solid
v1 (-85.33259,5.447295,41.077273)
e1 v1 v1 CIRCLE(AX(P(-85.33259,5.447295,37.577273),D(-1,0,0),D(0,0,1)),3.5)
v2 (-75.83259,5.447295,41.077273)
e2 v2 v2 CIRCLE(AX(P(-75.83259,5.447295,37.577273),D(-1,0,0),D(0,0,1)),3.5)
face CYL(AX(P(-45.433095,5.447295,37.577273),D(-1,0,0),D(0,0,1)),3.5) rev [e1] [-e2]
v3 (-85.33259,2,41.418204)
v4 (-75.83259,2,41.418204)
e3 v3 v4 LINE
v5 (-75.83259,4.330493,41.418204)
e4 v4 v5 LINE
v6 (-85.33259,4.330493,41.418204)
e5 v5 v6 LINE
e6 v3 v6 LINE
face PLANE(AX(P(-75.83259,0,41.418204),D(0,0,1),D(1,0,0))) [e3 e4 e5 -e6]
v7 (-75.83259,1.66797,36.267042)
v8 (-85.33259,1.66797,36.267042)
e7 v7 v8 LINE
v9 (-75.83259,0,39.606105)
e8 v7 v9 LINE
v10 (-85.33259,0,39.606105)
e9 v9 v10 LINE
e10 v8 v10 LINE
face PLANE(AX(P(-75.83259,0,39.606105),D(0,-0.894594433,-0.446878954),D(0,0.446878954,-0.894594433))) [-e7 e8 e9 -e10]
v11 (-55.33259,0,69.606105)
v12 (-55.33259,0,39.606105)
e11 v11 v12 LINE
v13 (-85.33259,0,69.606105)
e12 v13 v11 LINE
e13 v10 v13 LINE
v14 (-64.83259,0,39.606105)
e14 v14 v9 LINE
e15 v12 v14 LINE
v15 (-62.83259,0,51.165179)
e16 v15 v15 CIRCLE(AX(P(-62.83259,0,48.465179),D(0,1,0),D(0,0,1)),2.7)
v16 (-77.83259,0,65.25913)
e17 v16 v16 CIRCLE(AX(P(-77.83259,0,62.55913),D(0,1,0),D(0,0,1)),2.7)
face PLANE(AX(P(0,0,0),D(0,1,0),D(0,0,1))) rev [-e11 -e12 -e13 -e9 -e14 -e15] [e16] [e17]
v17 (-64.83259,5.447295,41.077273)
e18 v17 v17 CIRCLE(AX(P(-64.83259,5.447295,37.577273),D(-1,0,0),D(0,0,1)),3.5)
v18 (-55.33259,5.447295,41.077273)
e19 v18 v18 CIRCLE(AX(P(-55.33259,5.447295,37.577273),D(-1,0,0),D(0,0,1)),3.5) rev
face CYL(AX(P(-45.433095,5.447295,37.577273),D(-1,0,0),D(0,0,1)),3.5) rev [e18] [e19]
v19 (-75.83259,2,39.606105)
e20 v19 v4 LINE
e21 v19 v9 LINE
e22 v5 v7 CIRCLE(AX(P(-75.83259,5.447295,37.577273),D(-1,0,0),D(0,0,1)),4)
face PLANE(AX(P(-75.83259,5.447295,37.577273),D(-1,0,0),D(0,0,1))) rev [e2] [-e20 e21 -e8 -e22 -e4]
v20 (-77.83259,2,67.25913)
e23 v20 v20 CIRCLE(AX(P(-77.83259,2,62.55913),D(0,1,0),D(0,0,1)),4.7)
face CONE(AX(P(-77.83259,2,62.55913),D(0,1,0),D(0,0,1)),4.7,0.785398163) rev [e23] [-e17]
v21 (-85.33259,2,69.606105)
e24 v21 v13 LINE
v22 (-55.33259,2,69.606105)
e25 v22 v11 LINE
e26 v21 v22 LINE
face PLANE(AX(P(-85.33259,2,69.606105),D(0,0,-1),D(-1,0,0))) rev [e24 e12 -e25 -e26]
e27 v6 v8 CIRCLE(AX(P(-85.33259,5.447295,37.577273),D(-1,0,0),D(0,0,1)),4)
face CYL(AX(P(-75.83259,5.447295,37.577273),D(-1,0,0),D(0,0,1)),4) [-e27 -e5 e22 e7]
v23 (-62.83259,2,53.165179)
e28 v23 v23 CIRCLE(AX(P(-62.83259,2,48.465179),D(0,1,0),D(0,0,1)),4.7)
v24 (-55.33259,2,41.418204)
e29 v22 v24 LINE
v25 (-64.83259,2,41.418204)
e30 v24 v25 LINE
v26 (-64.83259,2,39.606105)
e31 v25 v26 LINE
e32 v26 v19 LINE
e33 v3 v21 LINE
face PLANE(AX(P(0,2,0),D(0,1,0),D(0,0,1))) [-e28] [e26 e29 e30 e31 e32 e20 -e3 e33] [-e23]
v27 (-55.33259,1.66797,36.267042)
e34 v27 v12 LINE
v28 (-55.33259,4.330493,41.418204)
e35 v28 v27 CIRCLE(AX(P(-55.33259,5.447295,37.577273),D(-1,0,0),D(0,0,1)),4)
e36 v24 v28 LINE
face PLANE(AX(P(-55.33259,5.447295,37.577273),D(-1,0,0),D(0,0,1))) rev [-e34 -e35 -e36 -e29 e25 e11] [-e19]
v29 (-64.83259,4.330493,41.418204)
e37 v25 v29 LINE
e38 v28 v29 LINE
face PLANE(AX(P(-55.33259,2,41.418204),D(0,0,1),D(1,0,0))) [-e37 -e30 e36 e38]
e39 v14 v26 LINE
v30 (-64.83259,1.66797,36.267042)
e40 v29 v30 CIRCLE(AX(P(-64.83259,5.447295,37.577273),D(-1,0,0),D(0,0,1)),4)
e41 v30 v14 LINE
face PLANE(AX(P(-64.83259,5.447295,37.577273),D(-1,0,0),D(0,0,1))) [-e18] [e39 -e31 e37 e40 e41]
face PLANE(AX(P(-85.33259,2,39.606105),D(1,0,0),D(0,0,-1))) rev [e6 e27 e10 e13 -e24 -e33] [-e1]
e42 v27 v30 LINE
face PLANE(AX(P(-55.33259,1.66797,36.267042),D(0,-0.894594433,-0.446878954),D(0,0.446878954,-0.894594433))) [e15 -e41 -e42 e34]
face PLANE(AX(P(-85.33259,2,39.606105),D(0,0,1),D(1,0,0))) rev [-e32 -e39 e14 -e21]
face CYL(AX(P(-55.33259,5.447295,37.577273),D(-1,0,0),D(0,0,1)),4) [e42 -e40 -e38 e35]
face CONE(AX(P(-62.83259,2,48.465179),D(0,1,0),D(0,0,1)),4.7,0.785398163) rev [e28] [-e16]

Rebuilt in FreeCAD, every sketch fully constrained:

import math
import FreeCAD as App
import Part
import Sketcher
Q = App.Units.Quantity

doc = App.newDocument("Part")
body = doc.addObject("PartDesign::Body", "Body")

sketch1 = doc.addObject("Sketcher::SketchObject", "Sketch")
body.addObject(sketch1)
sketch1.AttachmentSupport = (doc.XZ_Plane, [""])
sketch1.MapMode = "FlatFace"
sketch1.addGeometry([
    Part.LineSegment(App.Vector(-85, 40, 0), App.Vector(-85, 70, 0)),
    Part.LineSegment(App.Vector(-85, 70, 0), App.Vector(-55, 70, 0)),
    Part.LineSegment(App.Vector(-55, 70, 0), App.Vector(-55, 40, 0)),
    Part.LineSegment(App.Vector(-55, 40, 0), App.Vector(-85, 40, 0)),
], False)
sketch1.addConstraint([
    Sketcher.Constraint("Coincident", 0, 2, 1, 1),
    Sketcher.Constraint("Coincident", 1, 2, 2, 1),
    Sketcher.Constraint("Coincident", 2, 2, 3, 1),
    Sketcher.Constraint("Coincident", 3, 2, 0, 1),
    Sketcher.Constraint("Vertical", 0),
    Sketcher.Constraint("Horizontal", 1),
    Sketcher.Constraint("Vertical", 2),
    Sketcher.Constraint("Horizontal", 3),
    Sketcher.Constraint("Equal", 3, 0),
    Sketcher.Constraint("DistanceX", 1, 1, 1, 2, Q("30 mm")),
    Sketcher.Constraint("DistanceX", 0, 2, -1, 1, Q("85.33259 mm")),
    Sketcher.Constraint("DistanceY", -1, 1, 0, 2, Q("69.606105 mm")),
])
pad1 = doc.addObject("PartDesign::Pad", "Pad")
body.addObject(pad1)
pad1.Profile = sketch1
pad1.Length = 2
pad1.Reversed = True
body2 = doc.addObject("PartDesign::Body", "Body001")

sketch2 = doc.addObject("Sketcher::SketchObject", "Sketch001")
body2.addObject(sketch2)
sketch2.AttachmentSupport = (doc.getObject("YZ_Plane001"), [""])
sketch2.MapMode = "FlatFace"
sketch2.AttachmentOffset = App.Placement(App.Vector(0, 0, -85.33259), App.Rotation())
sketch2.addGeometry(Part.Circle(App.Vector(5.4, 37.6, 0), App.Vector(0, 0, 1), 4), False)
sketch2.addConstraint([
    Sketcher.Constraint("Diameter", 0, Q("8 mm")),
    Sketcher.Constraint("DistanceX", -1, 1, 0, 3, Q("5.447295 mm")),
    Sketcher.Constraint("DistanceY", -1, 1, 0, 3, Q("37.577273 mm")),
])
pad2 = doc.addObject("PartDesign::Pad", "Pad001")
body2.addObject(pad2)
pad2.Profile = sketch2
pad2.Length = 9.5
body3 = doc.addObject("PartDesign::Body", "Body002")

sketch3 = doc.addObject("Sketcher::SketchObject", "Sketch002")
body3.addObject(sketch3)
sketch3.AttachmentSupport = (doc.getObject("YZ_Plane002"), [""])
sketch3.MapMode = "FlatFace"
sketch3.AttachmentOffset = App.Placement(App.Vector(0, 0, -64.83259), App.Rotation())
sketch3.addGeometry(Part.Circle(App.Vector(5.4, 37.6, 0), App.Vector(0, 0, 1), 4), False)
sketch3.addConstraint([
    Sketcher.Constraint("Diameter", 0, Q("8 mm")),
    Sketcher.Constraint("DistanceX", -1, 1, 0, 3, Q("5.447295 mm")),
    Sketcher.Constraint("DistanceY", -1, 1, 0, 3, Q("37.577273 mm")),
])
pad3 = doc.addObject("PartDesign::Pad", "Pad002")
body3.addObject(pad3)
pad3.Profile = sketch3
pad3.Length = 9.5
body4 = doc.addObject("PartDesign::Body", "Body003")

sketch4 = doc.addObject("Sketcher::SketchObject", "Sketch003")
body4.addObject(sketch4)
sketch4.AttachmentSupport = (doc.getObject("YZ_Plane003"), [""])
sketch4.MapMode = "FlatFace"
sketch4.AttachmentOffset = App.Placement(App.Vector(0, 0, -55.33259), App.Rotation())
sketch4.addGeometry(Part.Circle(App.Vector(5.4, 37.6, 0), App.Vector(0, 0, 1), 3.5), False)
sketch4.addConstraint([
    Sketcher.Constraint("Diameter", 0, Q("7 mm")),
    Sketcher.Constraint("DistanceX", -1, 1, 0, 3, Q("5.447295 mm")),
    Sketcher.Constraint("DistanceY", -1, 1, 0, 3, Q("37.577273 mm")),
])
pad4 = doc.addObject("PartDesign::Pad", "Pad003")
body4.addObject(pad4)
pad4.Profile = sketch4
pad4.Length = 30
pad4.Reversed = True
doc.recompute()

body5 = doc.addObject("PartDesign::Body", "Body004")
body5.BaseFeature = body4
boolean = doc.addObject("PartDesign::Boolean", "Boolean")
body2.addObject(boolean)
boolean.Type = "Cut"
boolean.addObjects([body5])
doc.recompute()

boolean2 = doc.addObject("PartDesign::Boolean", "Boolean001")
body3.addObject(boolean2)
boolean2.Type = "Cut"
boolean2.addObjects([body4])
body.AllowCompound = True
doc.recompute()

boolean3 = doc.addObject("PartDesign::Boolean", "Boolean002")
body.addObject(boolean3)
boolean3.Type = "Fuse"
boolean3.addObjects([body2])

sketch5 = doc.addObject("Sketcher::SketchObject", "Sketch004")
body.addObject(sketch5)
sketch5.AttachmentSupport = (doc.YZ_Plane, [""])
sketch5.MapMode = "FlatFace"
sketch5.AttachmentOffset = App.Placement(App.Vector(0, 0, -85.33259), App.Rotation())
sketch5.addGeometry([
    Part.LineSegment(App.Vector(1.7, 36.3, 0), App.Vector(0, 39.6, 0)),
    Part.LineSegment(App.Vector(0, 39.6, 0), App.Vector(0, 41.4, 0)),
    Part.LineSegment(App.Vector(0, 41.4, 0), App.Vector(4.3, 41.4, 0)),
    Part.ArcOfCircle(Part.Circle(App.Vector(5.4, 37.6, 0), App.Vector(0, 0, 1), 4), math.radians(106), math.radians(199)),
], False)
sketch5.addConstraint([
    Sketcher.Constraint("Coincident", 0, 2, 1, 1),
    Sketcher.Constraint("Coincident", 1, 2, 2, 1),
    Sketcher.Constraint("Coincident", 2, 2, 3, 1),
    Sketcher.Constraint("Coincident", 3, 2, 0, 1),
    Sketcher.Constraint("Vertical", 1),
    Sketcher.Constraint("Horizontal", 2),
    Sketcher.Constraint("PointOnObject", 0, 2, -2),
    Sketcher.Constraint("Radius", 3, Q("4 mm")),
    Sketcher.Constraint("DistanceY", 1, 1, 1, 2, Q("1.8121 mm")),
    Sketcher.Constraint("DistanceX", 2, 2, 3, 3, Q("1.116802 mm")),
    Sketcher.Constraint("DistanceX", 2, 1, 2, 2, Q("4.330493 mm")),
    Sketcher.Constraint("DistanceX", -1, 1, 3, 2, Q("1.66797 mm")),
    Sketcher.Constraint("DistanceY", -1, 1, 3, 3, Q("37.577273 mm")),
])
pad5 = doc.addObject("PartDesign::Pad", "Pad004")
body.addObject(pad5)
pad5.Profile = sketch5
pad5.Length = 9.5
doc.recompute()

boolean4 = doc.addObject("PartDesign::Boolean", "Boolean003")
body.addObject(boolean4)
boolean4.Type = "Fuse"
boolean4.addObjects([body3])

sketch6 = doc.addObject("Sketcher::SketchObject", "Sketch005")
body.addObject(sketch6)
sketch6.AttachmentSupport = (doc.YZ_Plane, [""])
sketch6.MapMode = "FlatFace"
sketch6.AttachmentOffset = App.Placement(App.Vector(0, 0, -55.33259), App.Rotation())
sketch6.addGeometry([
    Part.LineSegment(App.Vector(2, 41.4, 0), App.Vector(4.3, 41.4, 0)),
    Part.LineSegment(App.Vector(4.3, 41.4, 0), App.Vector(4.2, 40.8, 0)),
    Part.ArcOfCircle(Part.Circle(App.Vector(5.4, 37.6, 0), App.Vector(0, 0, 1), 3.5), math.radians(111), math.radians(196)),
    Part.LineSegment(App.Vector(2.1, 36.6, 0), App.Vector(1.7, 36.3, 0)),
    Part.LineSegment(App.Vector(1.7, 36.3, 0), App.Vector(0, 39.6, 0)),
    Part.LineSegment(App.Vector(0, 39.6, 0), App.Vector(2, 41.4, 0)),
], False)
sketch6.addConstraint([
    Sketcher.Constraint("Coincident", 0, 2, 1, 1),
    Sketcher.Constraint("Coincident", 1, 2, 2, 1),
    Sketcher.Constraint("Coincident", 2, 2, 3, 1),
    Sketcher.Constraint("Coincident", 3, 2, 4, 1),
    Sketcher.Constraint("Coincident", 4, 2, 5, 1),
    Sketcher.Constraint("Coincident", 5, 2, 0, 1),
    Sketcher.Constraint("Horizontal", 0),
    Sketcher.Constraint("PointOnObject", 4, 2, -2),
    Sketcher.Constraint("Parallel", 3, 5),
    Sketcher.Constraint("Radius", 2, Q("3.5 mm")),
    Sketcher.Constraint("DistanceX", -1, 1, 5, 2, Q("2 mm")),
    Sketcher.Constraint("DistanceX", 0, 2, 2, 3, Q("1.116802 mm")),
    Sketcher.Constraint("DistanceY", 4, 2, 0, 2, Q("1.8121 mm")),
    Sketcher.Constraint("Distance", 3, Q("0.55064 mm")),
    Sketcher.Constraint("DistanceX", 0, 1, 0, 2, Q("2.330493 mm")),
    Sketcher.Constraint("DistanceX", -1, 1, 3, 2, Q("1.66797 mm")),
    Sketcher.Constraint("DistanceY", 2, 3, 0, 2, Q("3.840931 mm")),
    Sketcher.Constraint("DistanceX", 1, 2, 0, 2, Q("0.152331 mm")),
    Sketcher.Constraint("DistanceY", -1, 1, 2, 3, Q("37.577273 mm")),
])
pad6 = doc.addObject("PartDesign::Pad", "Pad005")
body.addObject(pad6)
pad6.Profile = sketch6
pad6.Length = 9.5
pad6.Reversed = True

sketch7 = doc.addObject("Sketcher::SketchObject", "Sketch006")
body.addObject(sketch7)
sketch7.AttachmentSupport = (doc.XZ_Plane, [""])
sketch7.MapMode = "FlatFace"
sketch7.AttachmentOffset = App.Placement(App.Vector(0, 0, -2), App.Rotation())
sketch7.addGeometry([
    Part.Circle(App.Vector(-62.8, 48.5, 0), App.Vector(0, 0, 1), 2.2),
    Part.Circle(App.Vector(-77.8, 62.6, 0), App.Vector(0, 0, 1), 2.2),
], False)
sketch7.addConstraint([
    Sketcher.Constraint("Equal", 0, 1),
    Sketcher.Constraint("Diameter", 0, Q("4.5 mm")),
    Sketcher.Constraint("DistanceX", 1, 3, 0, 3, Q("15 mm")),
    Sketcher.Constraint("DistanceX", 0, 3, -1, 1, Q("62.83259 mm")),
    Sketcher.Constraint("DistanceY", -1, 1, 0, 3, Q("48.465179 mm")),
    Sketcher.Constraint("DistanceY", -1, 1, 1, 3, Q("62.55913 mm")),
])
doc.recompute()
hole = doc.addObject("PartDesign::Hole", "Hole")
body.addObject(hole)
hole.Profile = sketch7
hole.ThreadType = "None"
hole.Diameter = 4.5
hole.DepthType = "Dimension"
hole.Depth = 21
hole.DrillPoint = "Angled"
hole.DrillPointAngle = 118
hole.HoleCutType = "Countersink"
hole.HoleCutDiameter = 9.4
hole.HoleCutCountersinkAngle = 90
hole.Reversed = True

doc.recompute()
